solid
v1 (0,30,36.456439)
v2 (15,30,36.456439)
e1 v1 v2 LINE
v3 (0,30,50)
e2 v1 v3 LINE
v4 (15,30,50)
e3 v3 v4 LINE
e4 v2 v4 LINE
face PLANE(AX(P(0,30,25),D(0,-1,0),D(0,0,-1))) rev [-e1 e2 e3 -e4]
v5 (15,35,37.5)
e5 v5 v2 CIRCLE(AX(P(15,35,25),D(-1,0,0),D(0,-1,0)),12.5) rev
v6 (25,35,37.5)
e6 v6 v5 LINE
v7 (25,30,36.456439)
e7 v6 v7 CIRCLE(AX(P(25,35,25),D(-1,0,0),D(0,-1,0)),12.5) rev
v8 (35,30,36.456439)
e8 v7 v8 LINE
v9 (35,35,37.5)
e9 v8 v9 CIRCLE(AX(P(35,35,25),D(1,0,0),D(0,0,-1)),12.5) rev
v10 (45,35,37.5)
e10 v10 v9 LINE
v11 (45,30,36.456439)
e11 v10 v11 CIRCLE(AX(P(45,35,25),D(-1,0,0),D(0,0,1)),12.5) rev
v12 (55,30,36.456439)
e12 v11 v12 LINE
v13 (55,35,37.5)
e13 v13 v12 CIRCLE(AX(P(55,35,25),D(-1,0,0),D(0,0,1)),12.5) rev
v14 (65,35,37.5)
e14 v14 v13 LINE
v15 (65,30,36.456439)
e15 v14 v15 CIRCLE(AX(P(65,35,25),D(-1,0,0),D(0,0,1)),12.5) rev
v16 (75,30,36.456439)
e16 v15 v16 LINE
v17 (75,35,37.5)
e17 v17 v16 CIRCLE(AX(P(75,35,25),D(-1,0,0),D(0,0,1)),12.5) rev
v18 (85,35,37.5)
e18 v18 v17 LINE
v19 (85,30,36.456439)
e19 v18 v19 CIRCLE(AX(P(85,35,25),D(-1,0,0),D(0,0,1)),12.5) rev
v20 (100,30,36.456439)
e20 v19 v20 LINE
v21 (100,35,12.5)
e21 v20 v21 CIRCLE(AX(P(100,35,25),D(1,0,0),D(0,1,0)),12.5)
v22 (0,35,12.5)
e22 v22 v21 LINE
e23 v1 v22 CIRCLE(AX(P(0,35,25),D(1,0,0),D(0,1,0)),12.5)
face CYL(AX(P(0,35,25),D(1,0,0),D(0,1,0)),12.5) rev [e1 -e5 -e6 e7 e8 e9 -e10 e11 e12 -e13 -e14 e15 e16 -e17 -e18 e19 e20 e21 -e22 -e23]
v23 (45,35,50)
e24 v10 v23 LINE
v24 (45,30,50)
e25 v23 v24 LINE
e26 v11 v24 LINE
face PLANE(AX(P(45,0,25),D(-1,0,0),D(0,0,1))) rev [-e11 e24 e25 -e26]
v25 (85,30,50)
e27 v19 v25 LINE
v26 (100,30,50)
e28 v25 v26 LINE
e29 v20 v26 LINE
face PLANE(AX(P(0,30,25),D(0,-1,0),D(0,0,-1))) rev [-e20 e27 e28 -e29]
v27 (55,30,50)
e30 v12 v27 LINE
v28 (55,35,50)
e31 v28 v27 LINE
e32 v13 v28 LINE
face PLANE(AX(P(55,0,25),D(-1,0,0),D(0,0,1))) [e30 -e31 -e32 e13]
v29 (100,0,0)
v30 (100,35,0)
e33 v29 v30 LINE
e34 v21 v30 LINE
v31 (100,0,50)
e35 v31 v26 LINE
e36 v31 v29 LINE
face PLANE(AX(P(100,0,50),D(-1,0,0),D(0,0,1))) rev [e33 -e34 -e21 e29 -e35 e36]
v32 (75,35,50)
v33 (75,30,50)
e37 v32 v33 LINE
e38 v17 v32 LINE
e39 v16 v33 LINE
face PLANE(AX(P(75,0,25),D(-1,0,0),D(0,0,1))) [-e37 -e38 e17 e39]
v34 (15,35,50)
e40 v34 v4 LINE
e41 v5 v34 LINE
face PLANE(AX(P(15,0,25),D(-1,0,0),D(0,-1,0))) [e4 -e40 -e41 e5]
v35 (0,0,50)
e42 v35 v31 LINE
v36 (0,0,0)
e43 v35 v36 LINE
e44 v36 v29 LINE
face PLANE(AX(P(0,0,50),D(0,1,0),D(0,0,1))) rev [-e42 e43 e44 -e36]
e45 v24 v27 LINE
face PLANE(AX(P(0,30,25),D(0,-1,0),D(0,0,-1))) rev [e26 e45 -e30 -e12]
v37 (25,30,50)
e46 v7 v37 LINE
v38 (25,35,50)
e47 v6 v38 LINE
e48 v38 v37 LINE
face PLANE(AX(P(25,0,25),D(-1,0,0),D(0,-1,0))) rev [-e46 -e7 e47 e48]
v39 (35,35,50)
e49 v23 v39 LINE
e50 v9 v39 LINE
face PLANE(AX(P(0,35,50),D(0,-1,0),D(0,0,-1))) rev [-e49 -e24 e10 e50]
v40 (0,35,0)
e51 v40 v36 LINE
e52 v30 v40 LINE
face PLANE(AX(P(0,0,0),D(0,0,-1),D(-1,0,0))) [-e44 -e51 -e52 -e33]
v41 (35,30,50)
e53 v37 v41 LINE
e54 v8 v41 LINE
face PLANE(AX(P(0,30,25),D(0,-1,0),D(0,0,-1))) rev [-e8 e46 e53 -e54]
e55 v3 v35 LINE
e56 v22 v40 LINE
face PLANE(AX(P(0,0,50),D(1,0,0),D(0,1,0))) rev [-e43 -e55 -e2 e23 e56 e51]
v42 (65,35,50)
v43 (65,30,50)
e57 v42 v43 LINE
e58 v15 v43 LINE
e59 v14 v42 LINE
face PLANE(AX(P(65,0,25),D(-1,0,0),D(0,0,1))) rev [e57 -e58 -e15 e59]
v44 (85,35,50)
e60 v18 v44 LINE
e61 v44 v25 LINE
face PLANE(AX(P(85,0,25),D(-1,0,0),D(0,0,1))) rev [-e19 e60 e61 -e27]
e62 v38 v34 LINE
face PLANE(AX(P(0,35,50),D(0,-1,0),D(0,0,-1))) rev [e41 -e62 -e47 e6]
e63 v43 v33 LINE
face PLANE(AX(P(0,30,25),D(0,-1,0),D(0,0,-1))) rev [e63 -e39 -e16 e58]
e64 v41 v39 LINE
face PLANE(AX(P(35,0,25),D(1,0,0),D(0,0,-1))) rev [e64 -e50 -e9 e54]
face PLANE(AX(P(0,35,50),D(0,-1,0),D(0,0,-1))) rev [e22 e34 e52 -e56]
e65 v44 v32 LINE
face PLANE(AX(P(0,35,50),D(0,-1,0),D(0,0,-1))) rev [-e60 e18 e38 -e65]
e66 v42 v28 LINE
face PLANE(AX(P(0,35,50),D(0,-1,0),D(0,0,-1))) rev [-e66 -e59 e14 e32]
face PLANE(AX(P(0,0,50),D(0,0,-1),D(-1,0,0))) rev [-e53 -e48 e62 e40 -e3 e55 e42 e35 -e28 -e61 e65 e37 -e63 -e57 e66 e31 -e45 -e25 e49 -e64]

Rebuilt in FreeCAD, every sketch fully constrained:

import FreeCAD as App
import Part
import Sketcher
from FreeCAD import Vector
Q = App.Units.Quantity

doc = App.newDocument("Part")
body = doc.addObject("PartDesign::Body", "Body")

# Sketch on XY plane
sketch1 = doc.addObject("Sketcher::SketchObject", "Sketch")
body.addObject(sketch1)
sketch1.AttachmentSupport = (doc.XY_Plane, [""])
sketch1.MapMode = "FlatFace"
sketch1.addGeometry([
    Part.LineSegment(Vector(0, 35, 0), Vector(0, 0, 0)),
    Part.LineSegment(Vector(0, 0, 0), Vector(100, 0, 0)),
    Part.LineSegment(Vector(100, 0, 0), Vector(100, 35, 0)),
    Part.LineSegment(Vector(100, 35, 0), Vector(0, 35, 0)),
], False)
sketch1.addConstraint([
    Sketcher.Constraint("Coincident", 0, 2, 1, 1),
    Sketcher.Constraint("Coincident", 1, 2, 2, 1),
    Sketcher.Constraint("Coincident", 2, 2, 3, 1),
    Sketcher.Constraint("Coincident", 3, 2, 0, 1),
    Sketcher.Constraint("Vertical", 0),
    Sketcher.Constraint("Horizontal", 1),
    Sketcher.Constraint("Vertical", 2),
    Sketcher.Constraint("Horizontal", 3),
    Sketcher.Constraint("Coincident", 0, 2, -1, 1),
    Sketcher.Constraint("DistanceX", 1, 1, 1, 2, Q("100 mm")),
    Sketcher.Constraint("DistanceY", 0, 2, 0, 1, Q("35 mm")),
])
pad1 = doc.addObject("PartDesign::Pad", "Pad")
body.addObject(pad1)
pad1.Profile = sketch1
pad1.Length = 50

# Sketch on YZ plane
sketch2 = doc.addObject("Sketcher::SketchObject", "Sketch001")
body.addObject(sketch2)
sketch2.AttachmentSupport = (doc.YZ_Plane, [""])
sketch2.MapMode = "FlatFace"
sketch2.AttachmentOffset = App.Placement(Vector(0, 0, 100), App.Rotation())
sketch2.addGeometry(Part.Circle(Vector(35, 25, 0), Vector(0, 0, 1), 12), False)
sketch2.addConstraint([
    Sketcher.Constraint("Diameter", 0, Q("25 mm")),
    Sketcher.Constraint("DistanceX", -1, 1, 0, 3, Q("35 mm")),
    Sketcher.Constraint("DistanceY", -1, 1, 0, 3, Q("25 mm")),
])
pocket1 = doc.addObject("PartDesign::Pocket", "Pocket")
body.addObject(pocket1)
pocket1.Profile = sketch2
pocket1.Length = 100

# Sketch on XY plane
sketch3 = doc.addObject("Sketcher::SketchObject", "Sketch002")
body.addObject(sketch3)
sketch3.AttachmentSupport = (doc.XY_Plane, [""])
sketch3.MapMode = "FlatFace"
sketch3.AttachmentOffset = App.Placement(Vector(0, 0, 50), App.Rotation())
sketch3.addGeometry([
    Part.LineSegment(Vector(0, 35, 0), Vector(0, 30, 0)),  # 0
    Part.LineSegment(Vector(0, 30, 0), Vector(15, 30, 0)),  # 1
    Part.LineSegment(Vector(15, 30, 0), Vector(15, 35, 0)),  # 2
    Part.LineSegment(Vector(15, 35, 0), Vector(0, 35, 0)),  # 3
    Part.LineSegment(Vector(25, 35, 0), Vector(25, 30, 0)),  # 4
    Part.LineSegment(Vector(25, 30, 0), Vector(35, 30, 0)),  # 5
    Part.LineSegment(Vector(35, 30, 0), Vector(35, 35, 0)),  # 6
    Part.LineSegment(Vector(35, 35, 0), Vector(25, 35, 0)),  # 7
    Part.LineSegment(Vector(65, 35, 0), Vector(65, 30, 0)),  # 8
    Part.LineSegment(Vector(65, 30, 0), Vector(75, 30, 0)),  # 9
    Part.LineSegment(Vector(75, 30, 0), Vector(75, 35, 0)),  # 10
    Part.LineSegment(Vector(75, 35, 0), Vector(65, 35, 0)),  # 11
    Part.LineSegment(Vector(85, 35, 0), Vector(85, 30, 0)),  # 12
    Part.LineSegment(Vector(85, 30, 0), Vector(100, 30, 0)),  # 13
    Part.LineSegment(Vector(100, 30, 0), Vector(100, 35, 0)),  # 14
    Part.LineSegment(Vector(100, 35, 0), Vector(85, 35, 0)),  # 15
    Part.LineSegment(Vector(45, 35, 0), Vector(45, 30, 0)),  # 16
    Part.LineSegment(Vector(45, 30, 0), Vector(55, 30, 0)),  # 17
    Part.LineSegment(Vector(55, 30, 0), Vector(55, 35, 0)),  # 18
    Part.LineSegment(Vector(55, 35, 0), Vector(45, 35, 0)),  # 19
], False)
sketch3.addConstraint([
    Sketcher.Constraint("Coincident", 0, 2, 1, 1),
    Sketcher.Constraint("Coincident", 1, 2, 2, 1),
    Sketcher.Constraint("Coincident", 2, 2, 3, 1),
    Sketcher.Constraint("Coincident", 3, 2, 0, 1),
    Sketcher.Constraint("Coincident", 4, 2, 5, 1),
    Sketcher.Constraint("Coincident", 5, 2, 6, 1),
    Sketcher.Constraint("Coincident", 6, 2, 7, 1),
    Sketcher.Constraint("Coincident", 7, 2, 4, 1),
    Sketcher.Constraint("Coincident", 8, 2, 9, 1),
    Sketcher.Constraint("Coincident", 9, 2, 10, 1),
    Sketcher.Constraint("Coincident", 10, 2, 11, 1),
    Sketcher.Constraint("Coincident", 11, 2, 8, 1),
    Sketcher.Constraint("Coincident", 12, 2, 13, 1),
    Sketcher.Constraint("Coincident", 13, 2, 14, 1),
    Sketcher.Constraint("Coincident", 14, 2, 15, 1),
    Sketcher.Constraint("Coincident", 15, 2, 12, 1),
    Sketcher.Constraint("Coincident", 16, 2, 17, 1),
    Sketcher.Constraint("Coincident", 17, 2, 18, 1),
    Sketcher.Constraint("Coincident", 18, 2, 19, 1),
    Sketcher.Constraint("Coincident", 19, 2, 16, 1),
    Sketcher.Constraint("Vertical", 0),
    Sketcher.Constraint("Horizontal", 1),
    Sketcher.Constraint("Vertical", 2),
    Sketcher.Constraint("Horizontal", 3),
    Sketcher.Constraint("Vertical", 4),
    Sketcher.Constraint("Horizontal", 5),
    Sketcher.Constraint("Vertical", 6),
    Sketcher.Constraint("Horizontal", 7),
    Sketcher.Constraint("Vertical", 8),
    Sketcher.Constraint("Horizontal", 9),
    Sketcher.Constraint("Vertical", 10),
    Sketcher.Constraint("Horizontal", 11),
    Sketcher.Constraint("Vertical", 12),
    Sketcher.Constraint("Horizontal", 13),
    Sketcher.Constraint("Vertical", 14),
    Sketcher.Constraint("Horizontal", 15),
    Sketcher.Constraint("Vertical", 16),
    Sketcher.Constraint("Horizontal", 17),
    Sketcher.Constraint("Vertical", 18),
    Sketcher.Constraint("Horizontal", 19),
    Sketcher.Constraint("PointOnObject", 0, 2, -2),
    Sketcher.Constraint("Horizontal", 1, 2, 4, 2),
    Sketcher.Constraint("Horizontal", 3, 2, 6, 2),
    Sketcher.Constraint("Horizontal", 5, 2, 8, 2),
    Sketcher.Constraint("Horizontal", 7, 2, 10, 2),
    Sketcher.Constraint("Horizontal", 9, 2, 12, 2),
    Sketcher.Constraint("Horizontal", 11, 2, 14, 2),
    Sketcher.Constraint("Horizontal", 13, 2, 16, 2),
    Sketcher.Constraint("Horizontal", 15, 2, 18, 2),
    Sketcher.Constraint("Equal", 7, 9),
    Sketcher.Constraint("Equal", 3, 13),
    Sketcher.Constraint("Equal", 11, 17),
    Sketcher.Constraint("DistanceX", 1, 1, 1, 2, Q("15 mm")),
    Sketcher.Constraint("DistanceX", 5, 1, 5, 2, Q("10 mm")),
    Sketcher.Constraint("DistanceY", 0, 2, 0, 1, Q("5 mm")),
    Sketcher.Constraint("DistanceY", -1, 1, 0, 2, Q("30 mm")),
    Sketcher.Constraint("DistanceX", -1, 1, 4, 2, Q("25 mm")),
    Sketcher.Constraint("DistanceX", -1, 1, 8, 2, Q("65 mm")),
    Sketcher.Constraint("DistanceX", -1, 1, 12, 2, Q("85 mm")),
    Sketcher.Constraint("DistanceX", -1, 1, 16, 2, Q("45 mm")),
])
pocket2 = doc.addObject("PartDesign::Pocket", "Pocket001")
body.addObject(pocket2)
pocket2.Profile = sketch3
pocket2.Length = 25

doc.recompute()
